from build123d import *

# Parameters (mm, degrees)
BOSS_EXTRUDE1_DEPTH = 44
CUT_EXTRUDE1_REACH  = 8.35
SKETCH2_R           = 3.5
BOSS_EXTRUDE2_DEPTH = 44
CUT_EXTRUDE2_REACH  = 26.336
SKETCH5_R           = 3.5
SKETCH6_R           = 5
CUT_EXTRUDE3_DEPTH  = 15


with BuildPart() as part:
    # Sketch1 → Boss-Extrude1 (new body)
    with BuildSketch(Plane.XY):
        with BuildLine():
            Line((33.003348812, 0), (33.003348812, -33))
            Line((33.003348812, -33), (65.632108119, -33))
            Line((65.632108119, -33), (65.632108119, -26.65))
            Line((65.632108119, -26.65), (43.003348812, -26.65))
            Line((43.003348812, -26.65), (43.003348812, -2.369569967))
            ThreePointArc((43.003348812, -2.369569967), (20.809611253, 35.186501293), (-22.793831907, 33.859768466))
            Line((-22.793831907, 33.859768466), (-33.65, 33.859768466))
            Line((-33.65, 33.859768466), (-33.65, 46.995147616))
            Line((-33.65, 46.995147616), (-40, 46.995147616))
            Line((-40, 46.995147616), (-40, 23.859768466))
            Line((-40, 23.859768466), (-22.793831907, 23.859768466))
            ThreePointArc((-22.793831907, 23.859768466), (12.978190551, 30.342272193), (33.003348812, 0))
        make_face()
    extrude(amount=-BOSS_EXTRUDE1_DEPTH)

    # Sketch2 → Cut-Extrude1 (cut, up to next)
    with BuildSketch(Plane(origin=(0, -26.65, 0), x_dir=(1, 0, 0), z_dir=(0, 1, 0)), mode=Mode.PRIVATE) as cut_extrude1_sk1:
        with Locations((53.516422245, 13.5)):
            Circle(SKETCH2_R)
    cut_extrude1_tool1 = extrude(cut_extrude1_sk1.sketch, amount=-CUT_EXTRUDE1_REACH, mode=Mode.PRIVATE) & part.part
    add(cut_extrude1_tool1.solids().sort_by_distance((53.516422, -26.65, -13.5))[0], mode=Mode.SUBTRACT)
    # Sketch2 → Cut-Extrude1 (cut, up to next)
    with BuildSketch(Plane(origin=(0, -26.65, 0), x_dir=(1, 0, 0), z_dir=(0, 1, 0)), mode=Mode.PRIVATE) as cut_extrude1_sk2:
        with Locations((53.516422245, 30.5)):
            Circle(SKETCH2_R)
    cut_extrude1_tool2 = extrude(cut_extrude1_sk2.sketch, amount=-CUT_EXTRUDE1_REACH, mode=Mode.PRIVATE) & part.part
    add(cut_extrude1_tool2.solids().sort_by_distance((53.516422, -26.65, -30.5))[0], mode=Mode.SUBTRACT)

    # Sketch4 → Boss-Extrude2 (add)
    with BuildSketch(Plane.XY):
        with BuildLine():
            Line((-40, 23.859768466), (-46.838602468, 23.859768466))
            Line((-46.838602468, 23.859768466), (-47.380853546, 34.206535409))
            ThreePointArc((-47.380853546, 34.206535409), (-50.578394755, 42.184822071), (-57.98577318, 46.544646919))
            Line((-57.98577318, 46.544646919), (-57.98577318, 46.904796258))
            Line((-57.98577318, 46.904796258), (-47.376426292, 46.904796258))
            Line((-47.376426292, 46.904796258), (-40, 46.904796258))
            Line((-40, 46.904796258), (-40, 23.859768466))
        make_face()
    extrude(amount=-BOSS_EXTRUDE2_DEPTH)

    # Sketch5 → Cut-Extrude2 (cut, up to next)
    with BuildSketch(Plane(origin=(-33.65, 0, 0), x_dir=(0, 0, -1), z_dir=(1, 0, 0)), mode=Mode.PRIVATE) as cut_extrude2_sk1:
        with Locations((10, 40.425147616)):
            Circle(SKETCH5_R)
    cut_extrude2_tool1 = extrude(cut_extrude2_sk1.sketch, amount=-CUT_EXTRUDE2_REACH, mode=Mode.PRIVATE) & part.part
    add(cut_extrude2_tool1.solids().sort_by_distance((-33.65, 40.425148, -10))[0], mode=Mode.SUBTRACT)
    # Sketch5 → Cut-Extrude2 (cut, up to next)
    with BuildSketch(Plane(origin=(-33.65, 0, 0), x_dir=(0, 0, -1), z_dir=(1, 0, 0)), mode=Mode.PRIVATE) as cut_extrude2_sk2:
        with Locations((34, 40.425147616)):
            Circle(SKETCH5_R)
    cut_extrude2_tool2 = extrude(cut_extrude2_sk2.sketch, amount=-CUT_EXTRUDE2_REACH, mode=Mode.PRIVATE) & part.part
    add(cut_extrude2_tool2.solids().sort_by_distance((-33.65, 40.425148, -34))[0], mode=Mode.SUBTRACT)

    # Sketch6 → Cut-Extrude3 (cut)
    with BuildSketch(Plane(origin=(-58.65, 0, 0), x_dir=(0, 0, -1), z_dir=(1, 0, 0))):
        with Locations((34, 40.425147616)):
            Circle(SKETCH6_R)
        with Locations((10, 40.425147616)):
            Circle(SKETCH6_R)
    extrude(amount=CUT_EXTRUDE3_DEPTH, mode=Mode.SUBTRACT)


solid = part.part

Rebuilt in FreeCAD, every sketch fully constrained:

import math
import FreeCAD as App
import Part
import Sketcher
from FreeCAD import Vector
Q = App.Units.Quantity

doc = App.newDocument("Part")
body = doc.addObject("PartDesign::Body", "Body")

# Sketch on XY plane
sketch1 = doc.addObject("Sketcher::SketchObject", "Sketch")
body.addObject(sketch1)
sketch1.AttachmentSupport = (doc.XY_Plane, [""])
sketch1.MapMode = "FlatFace"
sketch1.addGeometry(Part.LineSegment(Vector(33, 0, 0), Vector(33, -33, 0)), False)
sketch1.addGeometry(Part.LineSegment(Vector(33, -33, 0), Vector(66, -33, 0)), False)
sketch1.addGeometry(Part.LineSegment(Vector(66, -33, 0), Vector(66, -27, 0)), False)
sketch1.addGeometry(Part.LineSegment(Vector(66, -27, 0), Vector(43, -27, 0)), False)
sketch1.addGeometry(Part.LineSegment(Vector(43, -27, 0), Vector(43, -2, 0)), False)
sketch1.addGeometry(Part.ArcOfCircle(Part.Circle(Vector(0, -2, 0), Vector(0, 0, 1), 43), math.radians(0), math.radians(122)), False)
sketch1.addGeometry(Part.LineSegment(Vector(-23, 34, 0), Vector(-34, 34, 0)), False)
sketch1.addGeometry(Part.LineSegment(Vector(-34, 34, 0), Vector(-34, 47, 0)), False)
sketch1.addGeometry(Part.LineSegment(Vector(-34, 47, 0), Vector(-40, 47, 0)), False)
sketch1.addGeometry(Part.LineSegment(Vector(-40, 47, 0), Vector(-40, 24, 0)), False)
sketch1.addGeometry(Part.LineSegment(Vector(-40, 24, 0), Vector(-23, 24, 0)), False)
sketch1.addGeometry(Part.ArcOfCircle(Part.Circle(Vector(0, 0, 0), Vector(0, 0, 1), 33), math.radians(0), math.radians(134)), False)
sketch1.addConstraint(Sketcher.Constraint("Coincident", 0, 2, 1, 1))
sketch1.addConstraint(Sketcher.Constraint("Coincident", 1, 2, 2, 1))
sketch1.addConstraint(Sketcher.Constraint("Coincident", 2, 2, 3, 1))
sketch1.addConstraint(Sketcher.Constraint("Coincident", 3, 2, 4, 1))
sketch1.addConstraint(Sketcher.Constraint("Tangent", 4, 2, 5, 1))
sketch1.addConstraint(Sketcher.Constraint("Coincident", 5, 2, 6, 1))
sketch1.addConstraint(Sketcher.Constraint("Coincident", 6, 2, 7, 1))
sketch1.addConstraint(Sketcher.Constraint("Coincident", 7, 2, 8, 1))
sketch1.addConstraint(Sketcher.Constraint("Coincident", 8, 2, 9, 1))
sketch1.addConstraint(Sketcher.Constraint("Coincident", 9, 2, 10, 1))
sketch1.addConstraint(Sketcher.Constraint("Coincident", 10, 2, 11, 2))
sketch1.addConstraint(Sketcher.Constraint("Tangent", 11, 1, 0, 1))
sketch1.addConstraint(Sketcher.Constraint("Vertical", 0))
sketch1.addConstraint(Sketcher.Constraint("Horizontal", 1))
sketch1.addConstraint(Sketcher.Constraint("Vertical", 2))
sketch1.addConstraint(Sketcher.Constraint("Horizontal", 3))
sketch1.addConstraint(Sketcher.Constraint("Vertical", 4))
sketch1.addConstraint(Sketcher.Constraint("Horizontal", 6))
sketch1.addConstraint(Sketcher.Constraint("Vertical", 7))
sketch1.addConstraint(Sketcher.Constraint("Horizontal", 8))
sketch1.addConstraint(Sketcher.Constraint("Vertical", 9))
sketch1.addConstraint(Sketcher.Constraint("Horizontal", 10))
sketch1.addConstraint(Sketcher.Constraint("PointOnObject", 11, 3, -1))
sketch1.addConstraint(Sketcher.Constraint("Vertical", 5, 2, 10, 2))
sketch1.addConstraint(Sketcher.Constraint("Equal", 8, 2))
sketch1.addConstraint(Sketcher.Constraint("Radius", 11, 33.0))
sketch1.addConstraint(Sketcher.Constraint("DistanceY", 0, 2, 0, 1, 33.0))
sketch1.addConstraint(Sketcher.Constraint("DistanceX", 8, 2, -1, 1, 40.0))
sketch1.addConstraint(Sketcher.Constraint("DistanceX", 0, 2, 3, 2, 10.0))
sketch1.addConstraint(Sketcher.Constraint("DistanceY", 9, 2, 6, 2, 10.0))
sketch1.addConstraint(Sketcher.Constraint("DistanceX", 8, 2, 8, 1, 6.35))
sketch1.addConstraint(Sketcher.Constraint("Radius", 5, 42.872916))
sketch1.addConstraint(Sketcher.Constraint("DistanceX", 1, 1, 1, 2, 32.628759))
sketch1.addConstraint(Sketcher.Constraint("DistanceX", 6, 2, 6, 1, 10.856168))
sketch1.addConstraint(Sketcher.Constraint("DistanceY", 4, 1, 4, 2, 24.28043))
sketch1.addConstraint(Sketcher.Constraint("DistanceY", 7, 1, 7, 2, 13.135379))
pad1 = doc.addObject("PartDesign::Pad", "Pad")
body.addObject(pad1)
pad1.Profile = sketch1
pad1.Length = 44
pad1.Reversed = True

# Sketch on XZ plane
sketch2 = doc.addObject("Sketcher::SketchObject", "Sketch001")
body.addObject(sketch2)
sketch2.AttachmentSupport = (doc.XZ_Plane, [""])
sketch2.MapMode = "FlatFace"
sketch2.AttachmentOffset = App.Placement(Vector(0, 0, 26.65), App.Rotation())
sketch2.addGeometry(Part.Circle(Vector(53.5, -13.5, 0), Vector(0, 0, 1), 3.5), False)
sketch2.addConstraint(Sketcher.Constraint("Diameter", 0, 7.0))
sketch2.addConstraint(Sketcher.Constraint("DistanceY", 0, 3, -1, 1, 13.5))
sketch2.addConstraint(Sketcher.Constraint("DistanceX", -1, 1, 0, 3, 53.516422))
pocket1 = doc.addObject("PartDesign::Pocket", "Pocket")
body.addObject(pocket1)
pocket1.Profile = sketch2
pocket1.Type = "UpToFirst"
pocket1.Reversed = True

# Sketch on XZ plane
sketch3 = doc.addObject("Sketcher::SketchObject", "Sketch002")
body.addObject(sketch3)
sketch3.AttachmentSupport = (doc.XZ_Plane, [""])
sketch3.MapMode = "FlatFace"
sketch3.AttachmentOffset = App.Placement(Vector(0, 0, 26.65), App.Rotation())
sketch3.addGeometry(Part.Circle(Vector(53.5, -30.5, 0), Vector(0, 0, 1), 3.5), False)
sketch3.addConstraint(Sketcher.Constraint("Diameter", 0, 7.0))
sketch3.addConstraint(Sketcher.Constraint("DistanceY", 0, 3, -1, 1, 30.5))
sketch3.addConstraint(Sketcher.Constraint("DistanceX", -1, 1, 0, 3, 53.516422))
pocket2 = doc.addObject("PartDesign::Pocket", "Pocket001")
body.addObject(pocket2)
pocket2.Profile = sketch3
pocket2.Type = "UpToFirst"
pocket2.Reversed = True

# Sketch on XY plane
sketch4 = doc.addObject("Sketcher::SketchObject", "Sketch003")
body.addObject(sketch4)
sketch4.AttachmentSupport = (doc.XY_Plane, [""])
sketch4.MapMode = "FlatFace"
sketch4.addGeometry(Part.LineSegment(Vector(-46.84, 23.86, 0), Vector(-40, 23.86, 0)), False)
sketch4.addGeometry(Part.LineSegment(Vector(-40, 23.86, 0), Vector(-40, 46.9, 0)), False)
sketch4.addGeometry(Part.LineSegment(Vector(-40, 46.9, 0), Vector(-57.99, 46.9, 0)), False)
sketch4.addGeometry(Part.LineSegment(Vector(-57.99, 46.9, 0), Vector(-57.99, 46.54, 0)), False)
sketch4.addGeometry(Part.ArcOfCircle(Part.Circle(Vector(-60.67, 33.51, 0), Vector(0, 0, 1), 13.31), math.radians(3), math.radians(78)), False)
sketch4.addGeometry(Part.LineSegment(Vector(-47.38, 34.21, 0), Vector(-46.84, 23.86, 0)), False)
sketch4.addConstraint(Sketcher.Constraint("Coincident", 0, 2, 1, 1))
sketch4.addConstraint(Sketcher.Constraint("Coincident", 1, 2, 2, 1))
sketch4.addConstraint(Sketcher.Constraint("Coincident", 2, 2, 3, 1))
sketch4.addConstraint(Sketcher.Constraint("Coincident", 3, 2, 4, 2))
sketch4.addConstraint(Sketcher.Constraint("Tangent", 4, 1, 5, 1))
sketch4.addConstraint(Sketcher.Constraint("Coincident", 5, 2, 0, 1))
sketch4.addConstraint(Sketcher.Constraint("Horizontal", 0))
sketch4.addConstraint(Sketcher.Constraint("Vertical", 1))
sketch4.addConstraint(Sketcher.Constraint("Horizontal", 2))
sketch4.addConstraint(Sketcher.Constraint("Vertical", 3))
sketch4.addConstraint(Sketcher.Constraint("Angle", 5, Q("-87 deg")))
sketch4.addConstraint(Sketcher.Constraint("DistanceX", 0, 2, -1, 1, 40.0))
sketch4.addConstraint(Sketcher.Constraint("Radius", 4, 13.308315))
sketch4.addConstraint(Sketcher.Constraint("DistanceY", 3, 2, 3, 1, 0.360149))
sketch4.addConstraint(Sketcher.Constraint("DistanceX", 0, 1, 0, 2, 6.838602))
sketch4.addConstraint(Sketcher.Constraint("DistanceX", 2, 2, 2, 1, 17.985773))
sketch4.addConstraint(Sketcher.Constraint("DistanceY", 1, 1, 1, 2, 23.045028))
sketch4.addConstraint(Sketcher.Constraint("DistanceY", -1, 1, 0, 2, 23.859768))
pad2 = doc.addObject("PartDesign::Pad", "Pad001")
body.addObject(pad2)
pad2.Profile = sketch4
pad2.Length = 44
pad2.Reversed = True

# Sketch on YZ plane
sketch5 = doc.addObject("Sketcher::SketchObject", "Sketch004")
body.addObject(sketch5)
sketch5.AttachmentSupport = (doc.YZ_Plane, [""])
sketch5.MapMode = "FlatFace"
sketch5.AttachmentOffset = App.Placement(Vector(0, 0, -33.65), App.Rotation())
sketch5.addGeometry(Part.Circle(Vector(40.4, -10, 0), Vector(0, 0, 1), 3.5), False)
sketch5.addConstraint(Sketcher.Constraint("Diameter", 0, 7.0))
sketch5.addConstraint(Sketcher.Constraint("DistanceY", 0, 3, -1, 1, 10.0))
sketch5.addConstraint(Sketcher.Constraint("DistanceX", -1, 1, 0, 3, 40.425148))
pocket3 = doc.addObject("PartDesign::Pocket", "Pocket002")
body.addObject(pocket3)
pocket3.Profile = sketch5
pocket3.Type = "UpToFirst"

# Sketch on YZ plane
sketch6 = doc.addObject("Sketcher::SketchObject", "Sketch005")
body.addObject(sketch6)
sketch6.AttachmentSupport = (doc.YZ_Plane, [""])
sketch6.MapMode = "FlatFace"
sketch6.AttachmentOffset = App.Placement(Vector(0, 0, -33.65), App.Rotation())
sketch6.addGeometry(Part.Circle(Vector(40.4, -34, 0), Vector(0, 0, 1), 3.5), False)
sketch6.addConstraint(Sketcher.Constraint("Diameter", 0, 7.0))
sketch6.addConstraint(Sketcher.Constraint("DistanceY", 0, 3, -1, 1, 34.0))
sketch6.addConstraint(Sketcher.Constraint("DistanceX", -1, 1, 0, 3, 40.425148))
pocket4 = doc.addObject("PartDesign::Pocket", "Pocket003")
body.addObject(pocket4)
pocket4.Profile = sketch6
pocket4.Type = "UpToFirst"

# Sketch on YZ plane
sketch7 = doc.addObject("Sketcher::SketchObject", "Sketch006")
body.addObject(sketch7)
sketch7.AttachmentSupport = (doc.YZ_Plane, [""])
sketch7.MapMode = "FlatFace"
sketch7.AttachmentOffset = App.Placement(Vector(0, 0, -58.65), App.Rotation())
sketch7.addGeometry(Part.Circle(Vector(40, -34, 0), Vector(0, 0, 1), 5), False)
sketch7.addGeometry(Part.Circle(Vector(40, -10, 0), Vector(0, 0, 1), 5), False)
sketch7.addConstraint(Sketcher.Constraint("Equal", 0, 1))
sketch7.addConstraint(Sketcher.Constraint("Vertical", 0, 3, 1, 3))
sketch7.addConstraint(Sketcher.Constraint("Diameter", 0, 10.0))
sketch7.addConstraint(Sketcher.Constraint("DistanceY", 0, 3, -1, 1, 34.0))
sketch7.addConstraint(Sketcher.Constraint("DistanceY", 1, 3, -1, 1, 10.0))
sketch7.addConstraint(Sketcher.Constraint("DistanceX", -1, 1, 0, 3, 40.425148))
pocket5 = doc.addObject("PartDesign::Pocket", "Pocket004")
body.addObject(pocket5)
pocket5.Profile = sketch7
pocket5.Length = 15
pocket5.Reversed = True

doc.recompute()
